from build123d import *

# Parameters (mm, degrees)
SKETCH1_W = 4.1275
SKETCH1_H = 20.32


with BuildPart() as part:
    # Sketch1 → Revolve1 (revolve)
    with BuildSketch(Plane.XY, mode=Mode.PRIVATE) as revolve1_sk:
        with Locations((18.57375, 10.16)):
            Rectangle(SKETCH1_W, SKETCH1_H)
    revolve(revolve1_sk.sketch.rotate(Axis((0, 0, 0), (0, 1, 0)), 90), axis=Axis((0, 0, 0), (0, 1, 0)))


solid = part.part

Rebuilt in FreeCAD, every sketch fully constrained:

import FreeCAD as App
import Part
import Sketcher
from FreeCAD import Vector
Q = App.Units.Quantity

doc = App.newDocument("Part")
params = doc.addObject("Spreadsheet::Sheet", "Params")
for row, (alias, value) in enumerate([
    ("sketch1_height", "0.8 in"),
    ("revolution_angle", "360 deg"),
], start=1):
    params.set(f"A{row}", alias)
    params.set(f"B{row}", "=" + value)
    params.setAlias(f"B{row}", alias)

body = doc.addObject("PartDesign::Body", "Body")

# Sketch on XY plane
sketch1 = body.newObject("Sketcher::SketchObject", "Sketch")
sketch1.AttachmentSupport = (doc.getObject("XY_Plane"), [""])
sketch1.MapMode = "FlatFace"
sketch1.addGeometry(Part.LineSegment(Vector(16.5, 20.3, 0), Vector(16.5, 0, 0)), False)
sketch1.addGeometry(Part.LineSegment(Vector(16.5, 0, 0), Vector(20.6, 0, 0)), False)
sketch1.addGeometry(Part.LineSegment(Vector(20.6, 0, 0), Vector(20.6, 20.3, 0)), False)
sketch1.addGeometry(Part.LineSegment(Vector(20.6, 20.3, 0), Vector(16.5, 20.3, 0)), False)
sketch1.addConstraint(Sketcher.Constraint("Coincident", 0, 2, 1, 1))
sketch1.addConstraint(Sketcher.Constraint("Coincident", 1, 2, 2, 1))
sketch1.addConstraint(Sketcher.Constraint("Coincident", 2, 2, 3, 1))
sketch1.addConstraint(Sketcher.Constraint("Coincident", 3, 2, 0, 1))
sketch1.addConstraint(Sketcher.Constraint("Vertical", 0))
sketch1.addConstraint(Sketcher.Constraint("Horizontal", 1))
sketch1.addConstraint(Sketcher.Constraint("Vertical", 2))
sketch1.addConstraint(Sketcher.Constraint("Horizontal", 3))
sketch1.addConstraint(Sketcher.Constraint("PointOnObject", 0, 2, -1))
sketch1.addConstraint(Sketcher.Constraint("DistanceY", 0, 2, 0, 1, Q("0.8 in")))
sketch1.addConstraint(Sketcher.Constraint("DistanceX", -1, 1, 0, 2, Q("0.65 in")))
sketch1.addConstraint(Sketcher.Constraint("DistanceX", 1, 1, 1, 2, Q("0.1625 in")))
sketch1.setExpression("Constraints[9]", "Params.sketch1_height")
revolution = body.newObject("PartDesign::Revolution", "Revolution")
revolution.Profile = sketch1
revolution.ReferenceAxis = (sketch1, ["V_Axis"])
revolution.setExpression("Angle", "Params.revolution_angle")

doc.recompute()
